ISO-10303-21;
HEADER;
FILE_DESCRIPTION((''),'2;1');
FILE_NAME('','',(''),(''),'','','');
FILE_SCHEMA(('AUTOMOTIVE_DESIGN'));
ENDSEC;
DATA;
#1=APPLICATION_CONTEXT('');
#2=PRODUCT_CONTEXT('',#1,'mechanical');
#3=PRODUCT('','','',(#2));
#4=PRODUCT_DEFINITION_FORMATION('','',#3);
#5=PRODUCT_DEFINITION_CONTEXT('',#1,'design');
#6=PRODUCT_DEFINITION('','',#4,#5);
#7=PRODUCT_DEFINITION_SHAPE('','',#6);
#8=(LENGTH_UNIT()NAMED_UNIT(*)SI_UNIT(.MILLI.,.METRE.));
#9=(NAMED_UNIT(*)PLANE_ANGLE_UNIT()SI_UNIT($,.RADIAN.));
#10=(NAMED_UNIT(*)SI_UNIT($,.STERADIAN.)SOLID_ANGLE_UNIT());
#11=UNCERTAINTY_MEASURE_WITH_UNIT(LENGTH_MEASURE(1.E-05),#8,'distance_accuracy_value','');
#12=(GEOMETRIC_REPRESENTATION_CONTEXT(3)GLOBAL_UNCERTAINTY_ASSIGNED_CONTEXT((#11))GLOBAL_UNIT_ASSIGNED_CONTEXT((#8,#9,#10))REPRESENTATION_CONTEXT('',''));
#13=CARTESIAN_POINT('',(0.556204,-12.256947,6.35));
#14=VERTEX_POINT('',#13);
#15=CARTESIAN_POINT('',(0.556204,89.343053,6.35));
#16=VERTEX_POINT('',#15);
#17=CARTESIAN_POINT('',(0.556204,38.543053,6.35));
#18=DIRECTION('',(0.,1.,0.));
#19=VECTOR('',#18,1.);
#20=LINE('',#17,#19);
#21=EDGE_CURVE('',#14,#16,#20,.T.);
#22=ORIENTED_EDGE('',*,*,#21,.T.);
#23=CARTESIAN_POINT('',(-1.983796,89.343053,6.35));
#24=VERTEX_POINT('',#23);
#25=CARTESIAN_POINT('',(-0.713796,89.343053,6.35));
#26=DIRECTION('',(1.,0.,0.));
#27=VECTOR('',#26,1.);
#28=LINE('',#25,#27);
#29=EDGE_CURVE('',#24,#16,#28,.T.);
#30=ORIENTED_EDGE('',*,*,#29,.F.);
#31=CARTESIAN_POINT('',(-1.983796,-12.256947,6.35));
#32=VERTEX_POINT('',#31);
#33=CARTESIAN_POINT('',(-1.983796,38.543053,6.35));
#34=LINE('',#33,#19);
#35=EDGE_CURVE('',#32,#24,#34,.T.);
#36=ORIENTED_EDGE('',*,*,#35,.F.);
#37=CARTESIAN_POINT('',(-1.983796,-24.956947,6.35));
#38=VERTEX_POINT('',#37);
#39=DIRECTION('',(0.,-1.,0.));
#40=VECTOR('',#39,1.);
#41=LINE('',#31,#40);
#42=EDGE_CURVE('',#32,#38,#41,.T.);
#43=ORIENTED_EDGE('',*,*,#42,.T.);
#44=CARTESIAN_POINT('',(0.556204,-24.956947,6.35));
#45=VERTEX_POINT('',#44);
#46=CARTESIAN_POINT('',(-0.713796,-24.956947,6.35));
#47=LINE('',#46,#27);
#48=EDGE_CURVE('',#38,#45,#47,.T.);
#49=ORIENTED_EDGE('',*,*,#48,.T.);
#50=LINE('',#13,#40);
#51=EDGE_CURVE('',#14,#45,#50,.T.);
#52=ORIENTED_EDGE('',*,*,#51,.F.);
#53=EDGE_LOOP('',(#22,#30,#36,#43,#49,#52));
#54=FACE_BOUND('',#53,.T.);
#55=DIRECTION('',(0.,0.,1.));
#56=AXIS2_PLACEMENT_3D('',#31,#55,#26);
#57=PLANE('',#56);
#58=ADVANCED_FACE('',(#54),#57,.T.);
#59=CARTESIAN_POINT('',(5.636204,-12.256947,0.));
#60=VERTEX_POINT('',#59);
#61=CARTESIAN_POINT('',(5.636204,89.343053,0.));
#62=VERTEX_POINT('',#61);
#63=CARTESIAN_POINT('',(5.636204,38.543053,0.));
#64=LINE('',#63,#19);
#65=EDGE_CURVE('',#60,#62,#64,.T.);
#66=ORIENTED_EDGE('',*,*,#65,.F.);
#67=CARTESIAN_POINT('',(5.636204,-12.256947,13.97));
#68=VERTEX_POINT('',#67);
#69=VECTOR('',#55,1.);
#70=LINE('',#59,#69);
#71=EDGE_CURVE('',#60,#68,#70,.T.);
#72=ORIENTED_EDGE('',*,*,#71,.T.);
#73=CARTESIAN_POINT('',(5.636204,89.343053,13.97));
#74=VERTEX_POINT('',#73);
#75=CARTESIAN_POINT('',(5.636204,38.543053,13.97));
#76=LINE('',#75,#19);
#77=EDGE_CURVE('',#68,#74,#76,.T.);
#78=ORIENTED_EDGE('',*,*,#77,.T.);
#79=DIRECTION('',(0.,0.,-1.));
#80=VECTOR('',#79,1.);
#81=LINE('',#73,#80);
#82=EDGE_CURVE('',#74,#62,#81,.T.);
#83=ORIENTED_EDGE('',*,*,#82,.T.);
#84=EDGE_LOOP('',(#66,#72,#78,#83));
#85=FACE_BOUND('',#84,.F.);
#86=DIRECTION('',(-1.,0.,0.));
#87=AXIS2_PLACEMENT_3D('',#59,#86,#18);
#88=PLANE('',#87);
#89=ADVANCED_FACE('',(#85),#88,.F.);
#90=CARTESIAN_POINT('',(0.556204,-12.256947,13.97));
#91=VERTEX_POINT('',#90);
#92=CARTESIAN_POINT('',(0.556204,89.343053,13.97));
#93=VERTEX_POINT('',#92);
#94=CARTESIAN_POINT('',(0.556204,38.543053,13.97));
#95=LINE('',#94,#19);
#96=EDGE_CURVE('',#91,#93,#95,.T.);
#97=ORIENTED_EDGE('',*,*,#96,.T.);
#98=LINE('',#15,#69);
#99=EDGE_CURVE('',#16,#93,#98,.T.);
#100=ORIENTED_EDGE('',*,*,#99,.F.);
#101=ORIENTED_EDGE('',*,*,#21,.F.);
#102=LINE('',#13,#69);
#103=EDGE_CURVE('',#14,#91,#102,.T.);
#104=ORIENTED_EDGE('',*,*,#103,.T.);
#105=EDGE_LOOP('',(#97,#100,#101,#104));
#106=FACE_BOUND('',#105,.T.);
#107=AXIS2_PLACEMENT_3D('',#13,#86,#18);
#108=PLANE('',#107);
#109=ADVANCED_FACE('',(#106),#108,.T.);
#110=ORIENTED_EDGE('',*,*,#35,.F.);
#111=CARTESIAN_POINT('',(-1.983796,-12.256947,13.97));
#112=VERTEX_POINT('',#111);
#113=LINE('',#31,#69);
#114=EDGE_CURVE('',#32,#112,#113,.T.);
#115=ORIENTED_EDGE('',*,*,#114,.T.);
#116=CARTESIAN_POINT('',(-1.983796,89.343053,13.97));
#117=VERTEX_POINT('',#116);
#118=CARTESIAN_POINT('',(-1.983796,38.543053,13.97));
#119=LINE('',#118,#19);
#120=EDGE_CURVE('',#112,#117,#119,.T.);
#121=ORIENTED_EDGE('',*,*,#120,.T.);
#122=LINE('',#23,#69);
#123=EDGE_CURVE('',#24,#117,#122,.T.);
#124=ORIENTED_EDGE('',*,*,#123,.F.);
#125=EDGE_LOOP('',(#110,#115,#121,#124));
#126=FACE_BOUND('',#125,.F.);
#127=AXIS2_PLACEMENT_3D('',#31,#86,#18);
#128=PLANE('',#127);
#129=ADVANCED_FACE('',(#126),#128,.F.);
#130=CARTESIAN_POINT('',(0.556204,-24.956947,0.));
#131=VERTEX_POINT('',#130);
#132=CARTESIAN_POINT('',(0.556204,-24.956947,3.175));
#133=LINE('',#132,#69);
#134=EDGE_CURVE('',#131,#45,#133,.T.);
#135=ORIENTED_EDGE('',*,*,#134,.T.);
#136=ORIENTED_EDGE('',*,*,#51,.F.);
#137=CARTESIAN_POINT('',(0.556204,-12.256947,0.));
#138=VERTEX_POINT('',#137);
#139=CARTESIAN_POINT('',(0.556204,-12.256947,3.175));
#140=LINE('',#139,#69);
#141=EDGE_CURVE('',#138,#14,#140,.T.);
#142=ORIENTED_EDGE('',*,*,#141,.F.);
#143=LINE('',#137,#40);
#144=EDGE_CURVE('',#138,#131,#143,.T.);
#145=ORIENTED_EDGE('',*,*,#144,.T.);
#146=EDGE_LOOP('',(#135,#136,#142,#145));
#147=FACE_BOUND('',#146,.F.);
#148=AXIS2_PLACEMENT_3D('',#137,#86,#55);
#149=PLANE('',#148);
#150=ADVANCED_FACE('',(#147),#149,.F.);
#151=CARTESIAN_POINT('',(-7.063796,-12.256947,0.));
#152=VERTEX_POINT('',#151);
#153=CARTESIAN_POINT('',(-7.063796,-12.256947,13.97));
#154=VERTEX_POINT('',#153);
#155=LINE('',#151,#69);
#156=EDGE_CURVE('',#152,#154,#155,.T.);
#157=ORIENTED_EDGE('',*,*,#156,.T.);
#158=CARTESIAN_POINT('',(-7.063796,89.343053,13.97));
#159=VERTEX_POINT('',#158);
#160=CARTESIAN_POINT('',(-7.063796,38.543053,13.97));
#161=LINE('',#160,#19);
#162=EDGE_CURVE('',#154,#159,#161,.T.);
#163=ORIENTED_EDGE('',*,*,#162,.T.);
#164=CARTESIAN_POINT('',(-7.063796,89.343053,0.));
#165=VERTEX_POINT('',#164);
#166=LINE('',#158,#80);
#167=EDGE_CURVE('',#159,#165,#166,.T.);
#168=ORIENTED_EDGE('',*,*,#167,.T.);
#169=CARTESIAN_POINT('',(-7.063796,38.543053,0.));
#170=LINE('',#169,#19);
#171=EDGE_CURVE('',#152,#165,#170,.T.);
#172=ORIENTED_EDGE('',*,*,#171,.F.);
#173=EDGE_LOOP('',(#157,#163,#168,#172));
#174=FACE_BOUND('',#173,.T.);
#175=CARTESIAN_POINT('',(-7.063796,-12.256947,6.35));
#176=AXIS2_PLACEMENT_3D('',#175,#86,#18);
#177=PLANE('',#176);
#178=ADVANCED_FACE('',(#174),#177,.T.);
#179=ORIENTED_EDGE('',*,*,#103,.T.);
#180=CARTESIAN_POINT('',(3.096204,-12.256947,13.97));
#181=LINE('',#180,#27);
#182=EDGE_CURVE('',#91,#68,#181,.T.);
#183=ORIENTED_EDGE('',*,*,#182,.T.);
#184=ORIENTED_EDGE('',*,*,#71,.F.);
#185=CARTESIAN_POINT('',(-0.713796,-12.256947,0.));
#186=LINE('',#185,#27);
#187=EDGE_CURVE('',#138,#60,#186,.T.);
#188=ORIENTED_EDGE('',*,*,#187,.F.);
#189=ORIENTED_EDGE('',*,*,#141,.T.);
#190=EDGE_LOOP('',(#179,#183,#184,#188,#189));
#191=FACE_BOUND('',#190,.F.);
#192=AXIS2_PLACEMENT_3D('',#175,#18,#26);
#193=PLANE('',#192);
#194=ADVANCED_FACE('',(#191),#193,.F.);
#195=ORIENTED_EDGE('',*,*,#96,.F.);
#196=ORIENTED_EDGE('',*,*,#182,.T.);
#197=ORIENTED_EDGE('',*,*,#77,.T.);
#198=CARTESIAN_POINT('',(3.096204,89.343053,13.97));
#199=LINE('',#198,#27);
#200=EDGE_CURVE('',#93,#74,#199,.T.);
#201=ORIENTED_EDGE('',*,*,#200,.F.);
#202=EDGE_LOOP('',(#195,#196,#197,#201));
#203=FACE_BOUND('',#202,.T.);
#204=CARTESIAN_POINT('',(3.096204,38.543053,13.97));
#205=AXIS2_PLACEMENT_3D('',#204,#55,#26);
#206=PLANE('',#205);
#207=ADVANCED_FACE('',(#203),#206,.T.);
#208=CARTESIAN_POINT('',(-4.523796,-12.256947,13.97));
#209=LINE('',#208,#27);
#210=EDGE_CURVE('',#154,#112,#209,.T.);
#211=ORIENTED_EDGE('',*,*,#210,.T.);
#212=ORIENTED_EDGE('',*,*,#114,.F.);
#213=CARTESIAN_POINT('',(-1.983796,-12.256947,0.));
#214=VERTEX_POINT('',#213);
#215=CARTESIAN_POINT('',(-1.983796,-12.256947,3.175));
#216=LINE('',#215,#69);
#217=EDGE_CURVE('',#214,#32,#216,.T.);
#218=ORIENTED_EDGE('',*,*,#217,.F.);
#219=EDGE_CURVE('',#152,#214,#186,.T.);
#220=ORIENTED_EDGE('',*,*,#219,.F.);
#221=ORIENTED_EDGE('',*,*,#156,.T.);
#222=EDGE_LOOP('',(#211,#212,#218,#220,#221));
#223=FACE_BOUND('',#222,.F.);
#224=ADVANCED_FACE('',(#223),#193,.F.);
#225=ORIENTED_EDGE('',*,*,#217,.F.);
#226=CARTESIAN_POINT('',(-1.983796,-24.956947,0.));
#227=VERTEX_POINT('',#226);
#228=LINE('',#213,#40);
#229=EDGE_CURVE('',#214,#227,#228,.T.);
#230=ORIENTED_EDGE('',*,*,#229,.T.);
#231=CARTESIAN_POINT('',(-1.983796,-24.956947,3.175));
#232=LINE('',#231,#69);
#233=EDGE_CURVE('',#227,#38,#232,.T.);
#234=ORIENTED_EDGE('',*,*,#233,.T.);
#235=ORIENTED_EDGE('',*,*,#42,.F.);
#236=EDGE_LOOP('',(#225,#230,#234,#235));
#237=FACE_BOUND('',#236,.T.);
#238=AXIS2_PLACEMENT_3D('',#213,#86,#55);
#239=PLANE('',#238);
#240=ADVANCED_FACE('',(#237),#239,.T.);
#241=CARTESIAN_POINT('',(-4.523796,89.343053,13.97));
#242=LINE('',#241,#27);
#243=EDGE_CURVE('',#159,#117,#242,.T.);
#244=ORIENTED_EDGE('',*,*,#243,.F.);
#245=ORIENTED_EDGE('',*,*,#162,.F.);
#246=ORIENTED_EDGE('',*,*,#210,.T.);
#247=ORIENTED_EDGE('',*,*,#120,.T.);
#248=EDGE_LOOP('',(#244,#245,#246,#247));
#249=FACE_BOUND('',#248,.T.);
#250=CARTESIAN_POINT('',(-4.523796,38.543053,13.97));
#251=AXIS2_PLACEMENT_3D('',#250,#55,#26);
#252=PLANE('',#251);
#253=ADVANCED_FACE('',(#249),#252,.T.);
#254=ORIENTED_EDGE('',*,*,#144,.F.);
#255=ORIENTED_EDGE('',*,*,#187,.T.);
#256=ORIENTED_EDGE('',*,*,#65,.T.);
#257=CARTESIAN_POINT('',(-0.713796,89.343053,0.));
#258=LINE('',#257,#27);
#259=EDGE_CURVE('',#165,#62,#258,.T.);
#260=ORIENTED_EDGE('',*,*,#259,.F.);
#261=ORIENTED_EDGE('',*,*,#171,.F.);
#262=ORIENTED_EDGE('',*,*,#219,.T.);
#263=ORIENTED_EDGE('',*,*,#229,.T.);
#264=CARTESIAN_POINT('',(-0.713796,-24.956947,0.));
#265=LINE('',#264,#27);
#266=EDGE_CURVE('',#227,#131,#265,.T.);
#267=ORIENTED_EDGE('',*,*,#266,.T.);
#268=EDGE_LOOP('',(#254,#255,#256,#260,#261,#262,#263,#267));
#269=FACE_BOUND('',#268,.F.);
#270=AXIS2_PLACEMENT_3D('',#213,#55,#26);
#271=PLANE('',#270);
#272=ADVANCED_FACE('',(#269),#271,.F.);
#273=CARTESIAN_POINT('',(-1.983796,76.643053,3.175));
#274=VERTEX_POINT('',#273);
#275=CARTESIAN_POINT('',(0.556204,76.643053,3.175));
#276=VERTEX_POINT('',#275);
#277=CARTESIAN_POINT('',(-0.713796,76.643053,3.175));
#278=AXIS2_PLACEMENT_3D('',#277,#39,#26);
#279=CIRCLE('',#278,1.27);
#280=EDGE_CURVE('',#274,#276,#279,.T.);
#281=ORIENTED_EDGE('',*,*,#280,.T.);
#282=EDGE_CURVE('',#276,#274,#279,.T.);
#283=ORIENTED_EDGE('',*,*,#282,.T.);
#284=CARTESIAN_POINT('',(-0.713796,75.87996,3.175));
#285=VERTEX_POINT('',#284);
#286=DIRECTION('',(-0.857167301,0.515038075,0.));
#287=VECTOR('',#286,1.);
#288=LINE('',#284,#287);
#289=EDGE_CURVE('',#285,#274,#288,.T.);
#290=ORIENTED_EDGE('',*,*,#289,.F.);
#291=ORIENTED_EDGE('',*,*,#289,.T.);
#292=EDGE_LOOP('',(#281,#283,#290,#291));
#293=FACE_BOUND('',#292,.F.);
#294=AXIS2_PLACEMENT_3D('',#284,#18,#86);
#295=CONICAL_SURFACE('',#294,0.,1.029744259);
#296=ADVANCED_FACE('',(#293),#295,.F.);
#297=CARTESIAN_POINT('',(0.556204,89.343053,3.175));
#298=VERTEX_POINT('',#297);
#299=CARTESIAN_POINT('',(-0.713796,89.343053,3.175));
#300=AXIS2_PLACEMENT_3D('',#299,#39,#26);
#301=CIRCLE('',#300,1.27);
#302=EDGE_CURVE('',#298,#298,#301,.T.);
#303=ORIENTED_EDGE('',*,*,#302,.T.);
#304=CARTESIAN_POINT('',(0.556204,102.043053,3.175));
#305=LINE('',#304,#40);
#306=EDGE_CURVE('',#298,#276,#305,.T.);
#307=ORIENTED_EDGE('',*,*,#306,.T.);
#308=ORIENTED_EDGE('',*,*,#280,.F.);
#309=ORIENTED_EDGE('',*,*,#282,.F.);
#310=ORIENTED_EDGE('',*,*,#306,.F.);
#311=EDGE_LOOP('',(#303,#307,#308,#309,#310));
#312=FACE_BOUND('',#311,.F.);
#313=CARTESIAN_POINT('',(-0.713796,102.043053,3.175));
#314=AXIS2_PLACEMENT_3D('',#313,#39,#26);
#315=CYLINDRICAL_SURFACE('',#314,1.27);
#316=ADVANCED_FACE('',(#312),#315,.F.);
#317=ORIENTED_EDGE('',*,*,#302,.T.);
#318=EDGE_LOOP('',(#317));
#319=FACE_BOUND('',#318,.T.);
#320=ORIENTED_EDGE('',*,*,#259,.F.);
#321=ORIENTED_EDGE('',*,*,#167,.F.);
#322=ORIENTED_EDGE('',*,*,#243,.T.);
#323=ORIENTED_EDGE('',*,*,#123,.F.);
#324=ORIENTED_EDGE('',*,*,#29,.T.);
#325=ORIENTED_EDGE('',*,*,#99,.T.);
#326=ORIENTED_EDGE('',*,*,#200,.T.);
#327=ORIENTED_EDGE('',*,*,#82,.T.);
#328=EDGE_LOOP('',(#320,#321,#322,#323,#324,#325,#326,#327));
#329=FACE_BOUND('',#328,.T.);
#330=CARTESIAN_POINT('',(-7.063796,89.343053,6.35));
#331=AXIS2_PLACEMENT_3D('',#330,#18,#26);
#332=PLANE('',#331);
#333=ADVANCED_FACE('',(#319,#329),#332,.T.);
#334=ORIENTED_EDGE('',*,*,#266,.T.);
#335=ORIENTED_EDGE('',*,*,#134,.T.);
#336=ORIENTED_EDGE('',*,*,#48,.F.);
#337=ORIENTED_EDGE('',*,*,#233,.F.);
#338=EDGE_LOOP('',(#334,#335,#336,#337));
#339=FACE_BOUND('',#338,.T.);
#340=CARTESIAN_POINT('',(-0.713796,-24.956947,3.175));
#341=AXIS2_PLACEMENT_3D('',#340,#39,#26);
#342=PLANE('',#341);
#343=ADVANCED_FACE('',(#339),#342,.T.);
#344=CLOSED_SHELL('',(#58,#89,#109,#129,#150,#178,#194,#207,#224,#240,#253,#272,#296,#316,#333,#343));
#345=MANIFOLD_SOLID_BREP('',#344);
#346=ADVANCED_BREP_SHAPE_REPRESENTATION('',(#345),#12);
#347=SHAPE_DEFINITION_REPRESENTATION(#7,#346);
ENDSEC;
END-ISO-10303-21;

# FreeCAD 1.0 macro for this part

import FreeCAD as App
import Part
import Sketcher
from FreeCAD import Vector
Q = App.Units.Quantity


def add_polygon(sketch, points):
    """Adds a closed chain of lines whose ends are joined by coincident constraints."""
    first, n = sketch.GeometryCount, len(points)
    for a, b in zip(points, points[1:] + points[:1]):
        sketch.addGeometry(Part.LineSegment(App.Vector(*a, 0), App.Vector(*b, 0)), False)
    for i in range(n):
        sketch.addConstraint(Sketcher.Constraint("Coincident", first + i, 2, first + (i + 1) % n, 1))

doc = App.newDocument("Part")
body = doc.addObject("PartDesign::Body", "Body")

sketch1 = body.newObject("Sketcher::SketchObject", "Sketch")
sketch1.AttachmentSupport = (doc.getObject("XY_Plane"), [""])
sketch1.MapMode = "FlatFace"
add_polygon(sketch1, [(-7.063796, 89.343053), (-7.063796, -12.256947), (5.636204, -12.256947), (5.636204, 89.343053)])
sketch1.addConstraint([
    Sketcher.Constraint("Vertical", 0),
    Sketcher.Constraint("Horizontal", 1),
    Sketcher.Constraint("Vertical", 2),
    Sketcher.Constraint("Horizontal", 3),
    Sketcher.Constraint("DistanceY", 0, 2, 0, 1, Q("4 in")),
    Sketcher.Constraint("DistanceX", 1, 1, 1, 2, Q("0.5 in")),
    Sketcher.Constraint("DistanceX", 0, 2, -1, 1, Q("7.063796 mm")),
    Sketcher.Constraint("DistanceY", 0, 2, -1, 1, Q("12.256947 mm")),
])
pad1 = body.newObject("PartDesign::Pad", "Pad")
pad1.Profile = sketch1
pad1.Length = Q("0.25 in")

sketch2 = body.newObject("Sketcher::SketchObject", "Sketch001")
sketch2.AttachmentSupport = (doc.getObject("XY_Plane"), [""])
sketch2.MapMode = "FlatFace"
sketch2.AttachmentOffset = App.Placement(Vector(0, 0, 0.25 * 25.4), App.Rotation())
add_polygon(sketch2, [(-7.063796, 89.343053), (-7.063796, -12.256947), (-1.983796, -12.256947), (-1.983796, 89.343053)])
add_polygon(sketch2, [(0.556204, 89.343053), (0.556204, -12.256947), (5.636204, -12.256947), (5.636204, 89.343053)])
sketch2.addConstraint([
    Sketcher.Constraint("Vertical", 0),
    Sketcher.Constraint("Horizontal", 1),
    Sketcher.Constraint("Vertical", 2),
    Sketcher.Constraint("Horizontal", 3),
    Sketcher.Constraint("Vertical", 4),
    Sketcher.Constraint("Horizontal", 5),
    Sketcher.Constraint("Vertical", 6),
    Sketcher.Constraint("Horizontal", 7),
    Sketcher.Constraint("Horizontal", 1, 2, 4, 2),
    Sketcher.Constraint("Horizontal", 3, 2, 6, 2),
    Sketcher.Constraint("Equal", 3, 5),
    Sketcher.Constraint("DistanceY", 0, 2, 0, 1, Q("4 in")),
    Sketcher.Constraint("DistanceX", 1, 1, 1, 2, Q("0.2 in")),
    Sketcher.Constraint("DistanceX", 1, 2, 4, 2, Q("0.1 in")),
    Sketcher.Constraint("DistanceX", 0, 2, -1, 1, Q("7.063796 mm")),
    Sketcher.Constraint("DistanceY", 0, 2, -1, 1, Q("12.256947 mm")),
])
pad2 = body.newObject("PartDesign::Pad", "Pad001")
pad2.Profile = sketch2
pad2.Length = Q("0.3 in")

sketch3 = body.newObject("Sketcher::SketchObject", "Sketch002")
sketch3.AttachmentSupport = (doc.getObject("XZ_Plane"), [""])
sketch3.MapMode = "FlatFace"
sketch3.AttachmentOffset = App.Placement(Vector(0, 0, 12.256947), App.Rotation())
add_polygon(sketch3, [(-1.983796, 6.35), (-1.983796, 0), (0.556204, 0), (0.556204, 6.35)])
sketch3.addConstraint([
    Sketcher.Constraint("Vertical", 0),
    Sketcher.Constraint("Horizontal", 1),
    Sketcher.Constraint("Vertical", 2),
    Sketcher.Constraint("Horizontal", 3),
    Sketcher.Constraint("PointOnObject", 0, 2, -1),
    Sketcher.Constraint("DistanceX", 1, 1, 1, 2, Q("0.1 in")),
    Sketcher.Constraint("DistanceY", 0, 2, 0, 1, Q("0.25 in")),
    Sketcher.Constraint("DistanceX", 0, 2, -1, 1, Q("1.983796 mm")),
])
pad3 = body.newObject("PartDesign::Pad", "Pad002")
pad3.Profile = sketch3
pad3.Length = Q("0.5 in")

sketch4 = body.newObject("Sketcher::SketchObject", "Sketch003")
sketch4.AttachmentSupport = (doc.getObject("XZ_Plane"), [""])
sketch4.MapMode = "FlatFace"
sketch4.AttachmentOffset = App.Placement(Vector(0, 0, -89.343053), App.Rotation())
sketch4.addGeometry(Part.Circle(Vector(-0.713796, 3.175, 0), Vector(0, 0, 1), 1.27), False)
sketch4.addConstraint([
    Sketcher.Constraint("Diameter", 0, Q("0.1 in")),
    Sketcher.Constraint("DistanceY", -1, 1, 0, 3, Q("0.125 in")),
    Sketcher.Constraint("DistanceX", 0, 3, -1, 1, Q("0.713796 mm")),
])
doc.recompute()
hole = body.newObject("PartDesign::Hole", "Hole")
hole.Profile = sketch4
hole.ThreadType = "None"
hole.Diameter = Q("0.1 in")
hole.DepthType = "Dimension"
hole.Depth = Q("0.5 in")
hole.DrillPoint = "Angled"
hole.DrillPointAngle = 118
hole.Reversed = True

doc.recompute()
